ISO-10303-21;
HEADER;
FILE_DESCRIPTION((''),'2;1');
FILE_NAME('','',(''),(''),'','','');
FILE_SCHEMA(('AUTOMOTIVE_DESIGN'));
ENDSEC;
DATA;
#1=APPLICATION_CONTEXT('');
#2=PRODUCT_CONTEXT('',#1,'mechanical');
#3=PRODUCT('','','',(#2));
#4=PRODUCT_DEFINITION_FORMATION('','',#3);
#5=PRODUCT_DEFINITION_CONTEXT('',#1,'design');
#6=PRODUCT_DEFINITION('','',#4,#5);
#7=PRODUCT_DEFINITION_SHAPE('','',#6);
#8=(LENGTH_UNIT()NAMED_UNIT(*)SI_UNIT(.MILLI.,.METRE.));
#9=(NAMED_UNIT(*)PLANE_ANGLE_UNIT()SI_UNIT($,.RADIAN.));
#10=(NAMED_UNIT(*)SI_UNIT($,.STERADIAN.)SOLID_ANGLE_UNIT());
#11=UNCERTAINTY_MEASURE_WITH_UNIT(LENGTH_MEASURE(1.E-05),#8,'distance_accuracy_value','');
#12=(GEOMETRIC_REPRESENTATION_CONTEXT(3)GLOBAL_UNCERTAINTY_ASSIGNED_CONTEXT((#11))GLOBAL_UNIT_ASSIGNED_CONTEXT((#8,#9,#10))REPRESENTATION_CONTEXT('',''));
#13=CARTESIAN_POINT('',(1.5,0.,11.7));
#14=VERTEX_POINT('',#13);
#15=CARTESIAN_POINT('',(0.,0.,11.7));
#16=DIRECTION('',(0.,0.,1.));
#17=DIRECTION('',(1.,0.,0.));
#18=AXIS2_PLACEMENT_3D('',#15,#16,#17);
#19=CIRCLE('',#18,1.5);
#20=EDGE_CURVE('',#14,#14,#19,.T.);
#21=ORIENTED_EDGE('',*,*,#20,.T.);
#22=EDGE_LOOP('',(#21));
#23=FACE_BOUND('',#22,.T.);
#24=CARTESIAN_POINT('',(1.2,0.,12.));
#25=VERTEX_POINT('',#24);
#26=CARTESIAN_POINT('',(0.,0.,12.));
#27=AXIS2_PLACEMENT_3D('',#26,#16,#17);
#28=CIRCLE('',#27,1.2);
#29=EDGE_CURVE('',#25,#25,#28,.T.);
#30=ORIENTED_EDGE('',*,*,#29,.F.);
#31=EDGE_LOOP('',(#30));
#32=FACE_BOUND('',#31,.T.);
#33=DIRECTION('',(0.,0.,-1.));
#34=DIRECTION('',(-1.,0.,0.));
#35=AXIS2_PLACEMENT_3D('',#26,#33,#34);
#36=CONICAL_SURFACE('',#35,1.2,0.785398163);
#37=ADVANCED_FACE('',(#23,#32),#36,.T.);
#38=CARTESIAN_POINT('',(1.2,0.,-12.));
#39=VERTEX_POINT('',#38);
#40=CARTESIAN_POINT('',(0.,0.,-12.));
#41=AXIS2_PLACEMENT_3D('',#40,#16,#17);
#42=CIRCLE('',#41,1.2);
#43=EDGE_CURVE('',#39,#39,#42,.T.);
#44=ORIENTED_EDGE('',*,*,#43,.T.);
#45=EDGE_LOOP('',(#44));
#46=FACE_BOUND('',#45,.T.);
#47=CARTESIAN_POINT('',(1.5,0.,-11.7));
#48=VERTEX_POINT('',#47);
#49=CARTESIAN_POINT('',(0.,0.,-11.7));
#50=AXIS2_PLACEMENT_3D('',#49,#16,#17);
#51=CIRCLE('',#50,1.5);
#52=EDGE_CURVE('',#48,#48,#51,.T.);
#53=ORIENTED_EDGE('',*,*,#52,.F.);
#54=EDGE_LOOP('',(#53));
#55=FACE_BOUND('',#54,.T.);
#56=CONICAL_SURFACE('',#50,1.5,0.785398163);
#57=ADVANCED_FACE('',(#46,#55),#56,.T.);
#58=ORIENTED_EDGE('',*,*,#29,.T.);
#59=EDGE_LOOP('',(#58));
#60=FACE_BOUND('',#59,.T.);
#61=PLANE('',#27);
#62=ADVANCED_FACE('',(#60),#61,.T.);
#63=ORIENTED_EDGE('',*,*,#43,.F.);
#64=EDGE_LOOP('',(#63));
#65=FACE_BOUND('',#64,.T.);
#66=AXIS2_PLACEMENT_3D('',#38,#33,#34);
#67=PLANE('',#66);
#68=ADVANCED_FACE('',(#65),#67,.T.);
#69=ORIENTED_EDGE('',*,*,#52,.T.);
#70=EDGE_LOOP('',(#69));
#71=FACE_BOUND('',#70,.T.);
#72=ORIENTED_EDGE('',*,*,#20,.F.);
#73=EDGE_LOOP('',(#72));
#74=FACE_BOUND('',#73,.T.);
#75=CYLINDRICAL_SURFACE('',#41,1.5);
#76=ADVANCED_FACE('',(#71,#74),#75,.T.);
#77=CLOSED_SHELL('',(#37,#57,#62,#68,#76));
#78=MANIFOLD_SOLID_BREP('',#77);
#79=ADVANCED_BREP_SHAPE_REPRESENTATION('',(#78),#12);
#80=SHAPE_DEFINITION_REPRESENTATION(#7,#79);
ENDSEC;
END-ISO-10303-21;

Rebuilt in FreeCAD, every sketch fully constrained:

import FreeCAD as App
import Part
import Sketcher
Q = App.Units.Quantity


def add_polygon(sketch, points):
    """Adds a closed chain of lines whose ends are joined by coincident constraints."""
    first, n = sketch.GeometryCount, len(points)
    for a, b in zip(points, points[1:] + points[:1]):
        sketch.addGeometry(Part.LineSegment(App.Vector(*a, 0), App.Vector(*b, 0)), False)
    for i in range(n):
        sketch.addConstraint(Sketcher.Constraint("Coincident", first + i, 2, first + (i + 1) % n, 1))

doc = App.newDocument("Part")
params = doc.addObject("Spreadsheet::Sheet", "Params")
for row, (alias, value) in enumerate([
    ("sketch1_height", "24 mm"),
    ("sketch1_width", "1.2 mm"),
    ("sketch1_height2", "23.4 mm"),
    ("revolution_angle", "360 deg"),
], start=1):
    params.set(f"A{row}", alias)
    params.set(f"B{row}", "=" + value)
    params.setAlias(f"B{row}", alias)

body = doc.addObject("PartDesign::Body", "Body")

# Sketch on XZ plane
sketch1 = body.newObject("Sketcher::SketchObject", "Sketch")
sketch1.AttachmentSupport = (doc.getObject("XZ_Plane"), [""])
sketch1.MapMode = "FlatFace"
add_polygon(sketch1, [(1.2, -12), (0, -12), (0, 12), (1.2, 12), (1.5, 11.7), (1.5, -11.7)])  # lines 0-5
sketch1.addConstraint([
    Sketcher.Constraint("Horizontal", 0),
    Sketcher.Constraint("Vertical", 1),
    Sketcher.Constraint("Horizontal", 2),
    Sketcher.Constraint("Vertical", 4),
    Sketcher.Constraint("Symmetric", 0, 2, 1, 2, -1, 1),
    Sketcher.Constraint("Perpendicular", 3, 5),
    Sketcher.Constraint("Vertical", 2, 2, 5, 2),
    Sketcher.Constraint("Equal", 3, 5),
    Sketcher.Constraint("DistanceY", 1, 1, 1, 2, Q("24 mm")),
    Sketcher.Constraint("DistanceX", 0, 2, 0, 1, Q("1.2 mm")),
    Sketcher.Constraint("DistanceY", 4, 2, 4, 1, Q("23.4 mm")),
])
sketch1.setExpression("Constraints[14]", "Params.sketch1_height")
sketch1.setExpression("Constraints[15]", "Params.sketch1_width")
sketch1.setExpression("Constraints[16]", "Params.sketch1_height2")
revolution = body.newObject("PartDesign::Revolution", "Revolution")
revolution.Profile = sketch1
revolution.ReferenceAxis = (sketch1, ["V_Axis"])
revolution.setExpression("Angle", "Params.revolution_angle")

doc.recompute()
